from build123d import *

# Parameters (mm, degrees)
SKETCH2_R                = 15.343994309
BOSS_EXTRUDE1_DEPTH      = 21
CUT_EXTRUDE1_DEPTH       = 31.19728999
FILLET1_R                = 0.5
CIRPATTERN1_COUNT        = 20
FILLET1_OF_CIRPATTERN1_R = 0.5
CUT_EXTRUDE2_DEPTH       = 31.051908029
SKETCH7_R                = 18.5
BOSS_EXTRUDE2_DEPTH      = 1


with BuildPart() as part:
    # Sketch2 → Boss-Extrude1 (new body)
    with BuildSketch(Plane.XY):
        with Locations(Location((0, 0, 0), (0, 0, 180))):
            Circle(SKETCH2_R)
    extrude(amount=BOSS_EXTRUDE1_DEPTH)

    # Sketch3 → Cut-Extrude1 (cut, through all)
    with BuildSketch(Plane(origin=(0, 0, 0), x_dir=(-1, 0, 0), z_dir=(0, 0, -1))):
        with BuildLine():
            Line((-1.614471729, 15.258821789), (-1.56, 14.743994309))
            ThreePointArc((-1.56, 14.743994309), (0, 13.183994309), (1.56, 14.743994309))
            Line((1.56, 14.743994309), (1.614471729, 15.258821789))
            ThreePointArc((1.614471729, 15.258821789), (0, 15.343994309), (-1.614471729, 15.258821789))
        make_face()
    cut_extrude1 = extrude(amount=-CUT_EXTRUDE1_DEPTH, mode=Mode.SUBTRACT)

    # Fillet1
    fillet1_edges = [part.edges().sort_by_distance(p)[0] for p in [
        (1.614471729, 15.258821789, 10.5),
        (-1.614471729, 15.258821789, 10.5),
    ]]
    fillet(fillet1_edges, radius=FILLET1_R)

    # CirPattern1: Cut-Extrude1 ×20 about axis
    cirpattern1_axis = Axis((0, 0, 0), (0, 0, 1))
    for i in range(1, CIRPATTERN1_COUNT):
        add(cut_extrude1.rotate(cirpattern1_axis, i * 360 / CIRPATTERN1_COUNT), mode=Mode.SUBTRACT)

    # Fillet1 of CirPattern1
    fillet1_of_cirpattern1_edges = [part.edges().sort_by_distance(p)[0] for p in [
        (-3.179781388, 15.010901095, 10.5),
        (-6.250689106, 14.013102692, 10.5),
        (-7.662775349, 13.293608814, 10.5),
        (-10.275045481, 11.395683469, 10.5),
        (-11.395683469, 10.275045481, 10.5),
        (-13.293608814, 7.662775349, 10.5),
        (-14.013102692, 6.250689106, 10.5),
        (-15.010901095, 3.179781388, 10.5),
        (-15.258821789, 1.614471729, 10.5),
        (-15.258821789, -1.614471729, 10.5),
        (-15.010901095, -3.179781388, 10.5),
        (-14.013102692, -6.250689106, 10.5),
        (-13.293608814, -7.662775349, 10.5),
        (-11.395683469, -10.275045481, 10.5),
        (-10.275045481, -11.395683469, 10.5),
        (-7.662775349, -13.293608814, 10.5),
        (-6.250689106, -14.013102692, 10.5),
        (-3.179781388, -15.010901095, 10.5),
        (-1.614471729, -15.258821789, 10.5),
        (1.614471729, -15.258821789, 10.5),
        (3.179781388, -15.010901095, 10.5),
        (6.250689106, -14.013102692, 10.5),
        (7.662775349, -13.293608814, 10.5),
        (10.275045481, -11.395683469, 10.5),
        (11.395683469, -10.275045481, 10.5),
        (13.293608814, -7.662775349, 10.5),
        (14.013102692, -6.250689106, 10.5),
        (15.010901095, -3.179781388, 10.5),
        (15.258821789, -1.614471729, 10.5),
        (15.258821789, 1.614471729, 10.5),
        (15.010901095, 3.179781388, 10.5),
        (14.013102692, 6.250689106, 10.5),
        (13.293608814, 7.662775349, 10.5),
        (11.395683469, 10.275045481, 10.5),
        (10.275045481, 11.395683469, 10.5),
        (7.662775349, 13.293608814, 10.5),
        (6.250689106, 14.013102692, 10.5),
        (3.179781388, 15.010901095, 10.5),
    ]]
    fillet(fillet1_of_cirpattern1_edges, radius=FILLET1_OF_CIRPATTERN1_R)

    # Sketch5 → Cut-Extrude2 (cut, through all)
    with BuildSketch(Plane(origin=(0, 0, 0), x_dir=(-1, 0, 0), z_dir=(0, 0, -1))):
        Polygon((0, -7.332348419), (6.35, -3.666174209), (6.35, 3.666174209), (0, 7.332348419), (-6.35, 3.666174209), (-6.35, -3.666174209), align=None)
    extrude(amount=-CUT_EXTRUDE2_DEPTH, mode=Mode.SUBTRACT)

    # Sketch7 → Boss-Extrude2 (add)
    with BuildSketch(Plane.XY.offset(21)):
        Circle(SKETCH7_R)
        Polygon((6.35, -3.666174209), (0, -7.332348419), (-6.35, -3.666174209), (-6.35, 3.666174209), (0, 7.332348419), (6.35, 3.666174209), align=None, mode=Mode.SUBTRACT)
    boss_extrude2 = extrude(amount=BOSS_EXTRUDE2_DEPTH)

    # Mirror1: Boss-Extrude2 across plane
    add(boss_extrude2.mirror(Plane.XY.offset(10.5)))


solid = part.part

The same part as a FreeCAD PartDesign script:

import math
import FreeCAD as App
import Part
import Sketcher
from FreeCAD import Vector
Q = App.Units.Quantity


def edges_at(feature, points):
    """Names of the edges that pass closest to the given points."""
    edges = feature.Shape.Edges
    near = lambda p: min(range(len(edges)), key=lambda i: edges[i].distToShape(Part.Vertex(*p))[0])
    return sorted({f"Edge{near(p) + 1}" for p in points})


def add_polygon(sketch, points):
    """Adds a closed chain of lines whose ends are joined by coincident constraints."""
    first, n = sketch.GeometryCount, len(points)
    for a, b in zip(points, points[1:] + points[:1]):
        sketch.addGeometry(Part.LineSegment(App.Vector(*a, 0), App.Vector(*b, 0)), False)
    for i in range(n):
        sketch.addConstraint(Sketcher.Constraint("Coincident", first + i, 2, first + (i + 1) % n, 1))

doc = App.newDocument("Part")
params = doc.addObject("Spreadsheet::Sheet", "Params")
for row, (alias, value) in enumerate([
    ("pad1_length", "21 mm"),
    ("sketch2_radius", "1.56 mm"),
    ("fillet_radius", "0.5 mm"),
    ("fillet2_radius", "0.5 mm"),
    ("sketch4_diameter", "37 mm"),
    ("pad2_length", "1 mm"),
], start=1):
    params.set(f"A{row}", alias)
    params.set(f"B{row}", "=" + value)
    params.setAlias(f"B{row}", alias)

body = doc.addObject("PartDesign::Body", "Body")

# Sketch on XY plane
sketch1 = body.newObject("Sketcher::SketchObject", "Sketch")
sketch1.AttachmentSupport = (doc.getObject("XY_Plane"), [""])
sketch1.MapMode = "FlatFace"
sketch1.addGeometry(Part.Circle(Vector(0, 0, 0), Vector(0, 0, 1), 15), False)
sketch1.addConstraint(Sketcher.Constraint("Coincident", 0, 3, -1, 1))
sketch1.addConstraint(Sketcher.Constraint("Diameter", 0, Q("30.687989 mm")))
pad1 = body.newObject("PartDesign::Pad", "Pad")
pad1.Profile = sketch1
pad1.setExpression("Length", "Params.pad1_length")

# Sketch on XY plane
sketch2 = body.newObject("Sketcher::SketchObject", "Sketch001")
sketch2.AttachmentSupport = (doc.getObject("XY_Plane"), [""])
sketch2.MapMode = "FlatFace"
sketch2.addGeometry(Part.LineSegment(Vector(1.6, 15.3, 0), Vector(1.6, 14.7, 0)), False)
sketch2.addGeometry(Part.ArcOfCircle(Part.Circle(Vector(0, 14.7, 0), Vector(0, 0, 1), 1.6), math.radians(180), math.radians(360)), False)
sketch2.addGeometry(Part.LineSegment(Vector(-1.6, 14.7, 0), Vector(-1.6, 15.3, 0)), False)
sketch2.addGeometry(Part.ArcOfCircle(Part.Circle(Vector(0, 0, 0), Vector(0, 0, 1), 15.3), math.radians(83.96), math.radians(96.04)), False)
sketch2.addConstraint(Sketcher.Constraint("Coincident", 0, 2, 1, 2))
sketch2.addConstraint(Sketcher.Constraint("Coincident", 1, 1, 2, 1))
sketch2.addConstraint(Sketcher.Constraint("Coincident", 2, 2, 3, 2))
sketch2.addConstraint(Sketcher.Constraint("Coincident", 3, 1, 0, 1))
sketch2.addConstraint(Sketcher.Constraint("Coincident", 3, 3, -1, 1))
sketch2.addConstraint(Sketcher.Constraint("Symmetric", 0, 2, 1, 1, -2))
sketch2.addConstraint(Sketcher.Constraint("Horizontal", 1, 3, 0, 2))
sketch2.addConstraint(Sketcher.Constraint("Horizontal", 2, 2, 3, 1))
sketch2.addConstraint(Sketcher.Constraint("Radius", 1, Q("1.56 mm")))
sketch2.addConstraint(Sketcher.Constraint("Radius", 3, Q("15.343994 mm")))
sketch2.addConstraint(Sketcher.Constraint("Distance", 0, Q("0.517701 mm")))
sketch2.addConstraint(Sketcher.Constraint("DistanceX", 2, 2, -1, 1, Q("1.614472 mm")))
sketch2.setExpression("Constraints[8]", "Params.sketch2_radius")
pocket1 = body.newObject("PartDesign::Pocket", "Pocket")
pocket1.Profile = sketch2
pocket1.Type = "ThroughAll"
pocket1.Reversed = True
doc.recompute()

fillet = body.newObject("PartDesign::Fillet", "Fillet")
fillet.Base = (pocket1, edges_at(pocket1, [(1.614, 15.259, 10.5), (-1.614, 15.259, 10.5)]))
fillet.setExpression("Radius", "Params.fillet_radius")
doc.recompute()

polarpattern = body.newObject("PartDesign::PolarPattern", "PolarPattern")
polarpattern.Originals = [pocket1]
polarpattern.Axis = (doc.getObject("Z_Axis"), [""])
polarpattern.Angle = 360
polarpattern.Occurrences = 20
body.Tip = polarpattern
doc.recompute()

fillet2 = body.newObject("PartDesign::Fillet", "Fillet001")
fillet2.Base = (polarpattern, edges_at(polarpattern, [
    (-3.18, 15.011, 10.5),
    (-6.251, 14.013, 10.5),
    (-7.663, 13.294, 10.5),
    (-10.275, 11.396, 10.5),
    (-11.396, 10.275, 10.5),
    (-13.294, 7.663, 10.5),
    (-14.013, 6.251, 10.5),
    (-15.011, 3.18, 10.5),
    (-15.259, 1.614, 10.5),
    (-15.259, -1.614, 10.5),
    (-15.011, -3.18, 10.5),
    (-14.013, -6.251, 10.5),
    (-13.294, -7.663, 10.5),
    (-11.396, -10.275, 10.5),
    (-10.275, -11.396, 10.5),
    (-7.663, -13.294, 10.5),
    (-6.251, -14.013, 10.5),
    (-3.18, -15.011, 10.5),
    (-1.614, -15.259, 10.5),
    (1.614, -15.259, 10.5),
    (3.18, -15.011, 10.5),
    (6.251, -14.013, 10.5),
    (7.663, -13.294, 10.5),
    (10.275, -11.396, 10.5),
    (11.396, -10.275, 10.5),
    (13.294, -7.663, 10.5),
    (14.013, -6.251, 10.5),
    (15.011, -3.18, 10.5),
    (15.259, -1.614, 10.5),
    (15.259, 1.614, 10.5),
    (15.011, 3.18, 10.5),
    (14.013, 6.251, 10.5),
    (13.294, 7.663, 10.5),
    (11.396, 10.275, 10.5),
    (10.275, 11.396, 10.5),
    (7.663, 13.294, 10.5),
    (6.251, 14.013, 10.5),
    (3.18, 15.011, 10.5),
]))
fillet2.setExpression("Radius", "Params.fillet2_radius")

# Sketch on XY plane
sketch3 = body.newObject("Sketcher::SketchObject", "Sketch002")
sketch3.AttachmentSupport = (doc.getObject("XY_Plane"), [""])
sketch3.MapMode = "FlatFace"
add_polygon(sketch3, [(0, -7), (-6, -4), (-6, 4), (0, 7), (6, 4), (6, -4)])  # lines 0-5
sketch3.addConstraint(Sketcher.Constraint("Vertical", 1))
sketch3.addConstraint(Sketcher.Constraint("Vertical", 4))
sketch3.addConstraint(Sketcher.Constraint("Symmetric", 0, 2, 3, 2, -1, 1))
sketch3.addConstraint(Sketcher.Constraint("Symmetric", 2, 2, 5, 2, -1, 1))
sketch3.addConstraint(Sketcher.Constraint("PointOnObject", 2, 2, -2))
sketch3.addConstraint(Sketcher.Constraint("Parallel", 2, 5))
sketch3.addConstraint(Sketcher.Constraint("Horizontal", 1, 2, 3, 2))
sketch3.addConstraint(Sketcher.Constraint("Angle", 0, Q("150 deg")))
sketch3.addConstraint(Sketcher.Constraint("DistanceX", 1, 2, 3, 2, Q("12.7 mm")))
sketch3.addConstraint(Sketcher.Constraint("DistanceY", 1, 1, 1, 2, Q("7.332348 mm")))
pocket2 = body.newObject("PartDesign::Pocket", "Pocket001")
pocket2.Profile = sketch3
pocket2.Type = "ThroughAll"
pocket2.Reversed = True

# Sketch on XY plane
sketch4 = body.newObject("Sketcher::SketchObject", "Sketch003")
sketch4.AttachmentSupport = (doc.getObject("XY_Plane"), [""])
sketch4.MapMode = "FlatFace"
sketch4.AttachmentOffset = App.Placement(Vector(0, 0, 21), App.Rotation())
sketch4.addGeometry(Part.Circle(Vector(0, 0, 0), Vector(0, 0, 1), 18), False)  # 0
add_polygon(sketch4, [(6, 4), (6, -4), (0, -7), (-6, -4), (-6, 4), (0, 7)])  # lines 1-6
sketch4.addConstraint(Sketcher.Constraint("Vertical", 1))
sketch4.addConstraint(Sketcher.Constraint("Vertical", 4))
sketch4.addConstraint(Sketcher.Constraint("Coincident", 0, 3, -1, 1))
sketch4.addConstraint(Sketcher.Constraint("Symmetric", 1, 2, 4, 2, -1, 1))
sketch4.addConstraint(Sketcher.Constraint("Symmetric", 2, 2, 5, 2, -1, 1))
sketch4.addConstraint(Sketcher.Constraint("PointOnObject", 2, 2, -2))
sketch4.addConstraint(Sketcher.Constraint("Parallel", 3, 6))
sketch4.addConstraint(Sketcher.Constraint("Horizontal", 1, 2, 3, 2))
sketch4.addConstraint(Sketcher.Constraint("Diameter", 0, Q("37 mm")))
sketch4.addConstraint(Sketcher.Constraint("Angle", 2, Q("-150 deg")))
sketch4.addConstraint(Sketcher.Constraint("DistanceX", 3, 2, 1, 2, Q("12.7 mm")))
sketch4.addConstraint(Sketcher.Constraint("DistanceY", 1, 2, 1, 1, Q("7.332348 mm")))
sketch4.setExpression("Constraints[14]", "Params.sketch4_diameter")
pad2 = body.newObject("PartDesign::Pad", "Pad001")
pad2.Profile = sketch4
pad2.setExpression("Length", "Params.pad2_length")
doc.recompute()

datumplane = body.newObject("PartDesign::Plane", "DatumPlane")
datumplane.AttachmentSupport = (doc.getObject("XY_Plane"), [""])
datumplane.MapMode = "FlatFace"
datumplane.AttachmentOffset = App.Placement(Vector(0, 0, 10.5), App.Rotation())
mirrored = body.newObject("PartDesign::Mirrored", "Mirrored")
mirrored.Originals = [pad2]
mirrored.MirrorPlane = (datumplane, [""])
body.Tip = mirrored

doc.recompute()
